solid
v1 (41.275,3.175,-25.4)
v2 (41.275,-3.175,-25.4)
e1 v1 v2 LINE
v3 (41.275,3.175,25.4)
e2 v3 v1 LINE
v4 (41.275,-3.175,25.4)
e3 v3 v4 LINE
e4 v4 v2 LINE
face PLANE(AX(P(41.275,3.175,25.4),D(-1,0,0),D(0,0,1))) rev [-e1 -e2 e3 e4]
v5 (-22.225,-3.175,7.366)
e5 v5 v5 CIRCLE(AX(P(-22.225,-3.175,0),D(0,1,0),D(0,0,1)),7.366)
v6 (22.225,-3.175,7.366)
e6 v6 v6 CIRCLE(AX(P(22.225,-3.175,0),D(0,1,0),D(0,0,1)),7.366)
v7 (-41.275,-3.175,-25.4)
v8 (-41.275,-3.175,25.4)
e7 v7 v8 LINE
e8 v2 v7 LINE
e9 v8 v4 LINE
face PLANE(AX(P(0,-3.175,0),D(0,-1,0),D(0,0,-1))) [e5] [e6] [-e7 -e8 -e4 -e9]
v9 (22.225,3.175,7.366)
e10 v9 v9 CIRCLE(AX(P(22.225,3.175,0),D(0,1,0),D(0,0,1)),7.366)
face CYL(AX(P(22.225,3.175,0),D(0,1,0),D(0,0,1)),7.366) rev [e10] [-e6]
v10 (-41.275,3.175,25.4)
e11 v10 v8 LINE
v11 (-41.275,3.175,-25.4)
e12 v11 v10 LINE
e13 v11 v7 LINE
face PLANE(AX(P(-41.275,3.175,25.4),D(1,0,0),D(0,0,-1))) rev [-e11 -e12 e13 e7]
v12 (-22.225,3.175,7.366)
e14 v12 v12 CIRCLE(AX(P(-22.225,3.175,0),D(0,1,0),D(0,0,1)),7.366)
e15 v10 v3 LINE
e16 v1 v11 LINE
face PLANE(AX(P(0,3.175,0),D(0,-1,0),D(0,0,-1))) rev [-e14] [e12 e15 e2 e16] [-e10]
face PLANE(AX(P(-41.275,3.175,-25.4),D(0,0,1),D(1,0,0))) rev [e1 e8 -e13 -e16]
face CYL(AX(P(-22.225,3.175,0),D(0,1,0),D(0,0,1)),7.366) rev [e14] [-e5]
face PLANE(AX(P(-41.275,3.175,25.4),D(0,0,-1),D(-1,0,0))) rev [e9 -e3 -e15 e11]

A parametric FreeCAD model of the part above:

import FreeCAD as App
import Part
import Sketcher

V = App.Vector
Q = App.Units.Quantity


def add_polygon(sketch, points):
    """Adds a closed chain of lines whose ends are joined by coincident constraints."""
    first, n = sketch.GeometryCount, len(points)
    for a, b in zip(points, points[1:] + points[:1]):
        sketch.addGeometry(Part.LineSegment(App.Vector(*a, 0), App.Vector(*b, 0)), False)
    for i in range(n):
        sketch.addConstraint(Sketcher.Constraint("Coincident", first + i, 2, first + (i + 1) % n, 1))

doc = App.newDocument("Part")
body = doc.addObject("PartDesign::Body", "Body")

# Sketch on XZ plane
sketch1 = body.newObject("Sketcher::SketchObject", "Sketch")
sketch1.AttachmentSupport = (doc.getObject("XZ_Plane"), [""])
sketch1.MapMode = "FlatFace"
add_polygon(sketch1, [(-41.275, -25.4), (-41.275, 25.4), (41.275, 25.4), (41.275, -25.4)])  # lines 0-3
sketch1.addConstraint([
    Sketcher.Constraint("Vertical", 0),
    Sketcher.Constraint("Horizontal", 1),
    Sketcher.Constraint("Vertical", 2),
    Sketcher.Constraint("Horizontal", 3),
    Sketcher.Constraint("Symmetric", 0, 2, 2, 2, -1, 1),
    Sketcher.Constraint("DistanceY", 0, 1, 0, 2, Q("2 in")),
    Sketcher.Constraint("DistanceX", 1, 1, 1, 2, Q("3.25 in")),
])
pad1 = body.newObject("PartDesign::Pad", "Pad")
pad1.Profile = sketch1
pad1.Length = Q("0.25 in")
pad1.Midplane = True

# Sketch on XZ plane
sketch2 = body.newObject("Sketcher::SketchObject", "Sketch001")
sketch2.AttachmentSupport = (doc.getObject("XZ_Plane"), [""])
sketch2.MapMode = "FlatFace"
sketch2.AttachmentOffset = App.Placement(V(0, 0, -0.125 * 25.4), App.Rotation())
sketch2.addGeometry([
    Part.Circle(V(-22.225, 0, 0), V(0, 0, 1), 7.366),
    Part.Circle(V(22.225, 0, 0), V(0, 0, 1), 7.366),
], False)
sketch2.addConstraint([
    Sketcher.Constraint("Equal", 0, 1),
    Sketcher.Constraint("Symmetric", 0, 3, 1, 3, -1, 1),
    Sketcher.Constraint("PointOnObject", 0, 3, -1),
    Sketcher.Constraint("Diameter", 0, Q("0.58 in")),
    Sketcher.Constraint("DistanceX", 0, 3, 1, 3, Q("1.75 in")),
])
doc.recompute()
hole = body.newObject("PartDesign::Hole", "Hole")
hole.Profile = sketch2
hole.ThreadType = "None"
hole.Diameter = Q("0.58 in")
hole.DepthType = "ThroughAll"
hole.Reversed = True

doc.recompute()
